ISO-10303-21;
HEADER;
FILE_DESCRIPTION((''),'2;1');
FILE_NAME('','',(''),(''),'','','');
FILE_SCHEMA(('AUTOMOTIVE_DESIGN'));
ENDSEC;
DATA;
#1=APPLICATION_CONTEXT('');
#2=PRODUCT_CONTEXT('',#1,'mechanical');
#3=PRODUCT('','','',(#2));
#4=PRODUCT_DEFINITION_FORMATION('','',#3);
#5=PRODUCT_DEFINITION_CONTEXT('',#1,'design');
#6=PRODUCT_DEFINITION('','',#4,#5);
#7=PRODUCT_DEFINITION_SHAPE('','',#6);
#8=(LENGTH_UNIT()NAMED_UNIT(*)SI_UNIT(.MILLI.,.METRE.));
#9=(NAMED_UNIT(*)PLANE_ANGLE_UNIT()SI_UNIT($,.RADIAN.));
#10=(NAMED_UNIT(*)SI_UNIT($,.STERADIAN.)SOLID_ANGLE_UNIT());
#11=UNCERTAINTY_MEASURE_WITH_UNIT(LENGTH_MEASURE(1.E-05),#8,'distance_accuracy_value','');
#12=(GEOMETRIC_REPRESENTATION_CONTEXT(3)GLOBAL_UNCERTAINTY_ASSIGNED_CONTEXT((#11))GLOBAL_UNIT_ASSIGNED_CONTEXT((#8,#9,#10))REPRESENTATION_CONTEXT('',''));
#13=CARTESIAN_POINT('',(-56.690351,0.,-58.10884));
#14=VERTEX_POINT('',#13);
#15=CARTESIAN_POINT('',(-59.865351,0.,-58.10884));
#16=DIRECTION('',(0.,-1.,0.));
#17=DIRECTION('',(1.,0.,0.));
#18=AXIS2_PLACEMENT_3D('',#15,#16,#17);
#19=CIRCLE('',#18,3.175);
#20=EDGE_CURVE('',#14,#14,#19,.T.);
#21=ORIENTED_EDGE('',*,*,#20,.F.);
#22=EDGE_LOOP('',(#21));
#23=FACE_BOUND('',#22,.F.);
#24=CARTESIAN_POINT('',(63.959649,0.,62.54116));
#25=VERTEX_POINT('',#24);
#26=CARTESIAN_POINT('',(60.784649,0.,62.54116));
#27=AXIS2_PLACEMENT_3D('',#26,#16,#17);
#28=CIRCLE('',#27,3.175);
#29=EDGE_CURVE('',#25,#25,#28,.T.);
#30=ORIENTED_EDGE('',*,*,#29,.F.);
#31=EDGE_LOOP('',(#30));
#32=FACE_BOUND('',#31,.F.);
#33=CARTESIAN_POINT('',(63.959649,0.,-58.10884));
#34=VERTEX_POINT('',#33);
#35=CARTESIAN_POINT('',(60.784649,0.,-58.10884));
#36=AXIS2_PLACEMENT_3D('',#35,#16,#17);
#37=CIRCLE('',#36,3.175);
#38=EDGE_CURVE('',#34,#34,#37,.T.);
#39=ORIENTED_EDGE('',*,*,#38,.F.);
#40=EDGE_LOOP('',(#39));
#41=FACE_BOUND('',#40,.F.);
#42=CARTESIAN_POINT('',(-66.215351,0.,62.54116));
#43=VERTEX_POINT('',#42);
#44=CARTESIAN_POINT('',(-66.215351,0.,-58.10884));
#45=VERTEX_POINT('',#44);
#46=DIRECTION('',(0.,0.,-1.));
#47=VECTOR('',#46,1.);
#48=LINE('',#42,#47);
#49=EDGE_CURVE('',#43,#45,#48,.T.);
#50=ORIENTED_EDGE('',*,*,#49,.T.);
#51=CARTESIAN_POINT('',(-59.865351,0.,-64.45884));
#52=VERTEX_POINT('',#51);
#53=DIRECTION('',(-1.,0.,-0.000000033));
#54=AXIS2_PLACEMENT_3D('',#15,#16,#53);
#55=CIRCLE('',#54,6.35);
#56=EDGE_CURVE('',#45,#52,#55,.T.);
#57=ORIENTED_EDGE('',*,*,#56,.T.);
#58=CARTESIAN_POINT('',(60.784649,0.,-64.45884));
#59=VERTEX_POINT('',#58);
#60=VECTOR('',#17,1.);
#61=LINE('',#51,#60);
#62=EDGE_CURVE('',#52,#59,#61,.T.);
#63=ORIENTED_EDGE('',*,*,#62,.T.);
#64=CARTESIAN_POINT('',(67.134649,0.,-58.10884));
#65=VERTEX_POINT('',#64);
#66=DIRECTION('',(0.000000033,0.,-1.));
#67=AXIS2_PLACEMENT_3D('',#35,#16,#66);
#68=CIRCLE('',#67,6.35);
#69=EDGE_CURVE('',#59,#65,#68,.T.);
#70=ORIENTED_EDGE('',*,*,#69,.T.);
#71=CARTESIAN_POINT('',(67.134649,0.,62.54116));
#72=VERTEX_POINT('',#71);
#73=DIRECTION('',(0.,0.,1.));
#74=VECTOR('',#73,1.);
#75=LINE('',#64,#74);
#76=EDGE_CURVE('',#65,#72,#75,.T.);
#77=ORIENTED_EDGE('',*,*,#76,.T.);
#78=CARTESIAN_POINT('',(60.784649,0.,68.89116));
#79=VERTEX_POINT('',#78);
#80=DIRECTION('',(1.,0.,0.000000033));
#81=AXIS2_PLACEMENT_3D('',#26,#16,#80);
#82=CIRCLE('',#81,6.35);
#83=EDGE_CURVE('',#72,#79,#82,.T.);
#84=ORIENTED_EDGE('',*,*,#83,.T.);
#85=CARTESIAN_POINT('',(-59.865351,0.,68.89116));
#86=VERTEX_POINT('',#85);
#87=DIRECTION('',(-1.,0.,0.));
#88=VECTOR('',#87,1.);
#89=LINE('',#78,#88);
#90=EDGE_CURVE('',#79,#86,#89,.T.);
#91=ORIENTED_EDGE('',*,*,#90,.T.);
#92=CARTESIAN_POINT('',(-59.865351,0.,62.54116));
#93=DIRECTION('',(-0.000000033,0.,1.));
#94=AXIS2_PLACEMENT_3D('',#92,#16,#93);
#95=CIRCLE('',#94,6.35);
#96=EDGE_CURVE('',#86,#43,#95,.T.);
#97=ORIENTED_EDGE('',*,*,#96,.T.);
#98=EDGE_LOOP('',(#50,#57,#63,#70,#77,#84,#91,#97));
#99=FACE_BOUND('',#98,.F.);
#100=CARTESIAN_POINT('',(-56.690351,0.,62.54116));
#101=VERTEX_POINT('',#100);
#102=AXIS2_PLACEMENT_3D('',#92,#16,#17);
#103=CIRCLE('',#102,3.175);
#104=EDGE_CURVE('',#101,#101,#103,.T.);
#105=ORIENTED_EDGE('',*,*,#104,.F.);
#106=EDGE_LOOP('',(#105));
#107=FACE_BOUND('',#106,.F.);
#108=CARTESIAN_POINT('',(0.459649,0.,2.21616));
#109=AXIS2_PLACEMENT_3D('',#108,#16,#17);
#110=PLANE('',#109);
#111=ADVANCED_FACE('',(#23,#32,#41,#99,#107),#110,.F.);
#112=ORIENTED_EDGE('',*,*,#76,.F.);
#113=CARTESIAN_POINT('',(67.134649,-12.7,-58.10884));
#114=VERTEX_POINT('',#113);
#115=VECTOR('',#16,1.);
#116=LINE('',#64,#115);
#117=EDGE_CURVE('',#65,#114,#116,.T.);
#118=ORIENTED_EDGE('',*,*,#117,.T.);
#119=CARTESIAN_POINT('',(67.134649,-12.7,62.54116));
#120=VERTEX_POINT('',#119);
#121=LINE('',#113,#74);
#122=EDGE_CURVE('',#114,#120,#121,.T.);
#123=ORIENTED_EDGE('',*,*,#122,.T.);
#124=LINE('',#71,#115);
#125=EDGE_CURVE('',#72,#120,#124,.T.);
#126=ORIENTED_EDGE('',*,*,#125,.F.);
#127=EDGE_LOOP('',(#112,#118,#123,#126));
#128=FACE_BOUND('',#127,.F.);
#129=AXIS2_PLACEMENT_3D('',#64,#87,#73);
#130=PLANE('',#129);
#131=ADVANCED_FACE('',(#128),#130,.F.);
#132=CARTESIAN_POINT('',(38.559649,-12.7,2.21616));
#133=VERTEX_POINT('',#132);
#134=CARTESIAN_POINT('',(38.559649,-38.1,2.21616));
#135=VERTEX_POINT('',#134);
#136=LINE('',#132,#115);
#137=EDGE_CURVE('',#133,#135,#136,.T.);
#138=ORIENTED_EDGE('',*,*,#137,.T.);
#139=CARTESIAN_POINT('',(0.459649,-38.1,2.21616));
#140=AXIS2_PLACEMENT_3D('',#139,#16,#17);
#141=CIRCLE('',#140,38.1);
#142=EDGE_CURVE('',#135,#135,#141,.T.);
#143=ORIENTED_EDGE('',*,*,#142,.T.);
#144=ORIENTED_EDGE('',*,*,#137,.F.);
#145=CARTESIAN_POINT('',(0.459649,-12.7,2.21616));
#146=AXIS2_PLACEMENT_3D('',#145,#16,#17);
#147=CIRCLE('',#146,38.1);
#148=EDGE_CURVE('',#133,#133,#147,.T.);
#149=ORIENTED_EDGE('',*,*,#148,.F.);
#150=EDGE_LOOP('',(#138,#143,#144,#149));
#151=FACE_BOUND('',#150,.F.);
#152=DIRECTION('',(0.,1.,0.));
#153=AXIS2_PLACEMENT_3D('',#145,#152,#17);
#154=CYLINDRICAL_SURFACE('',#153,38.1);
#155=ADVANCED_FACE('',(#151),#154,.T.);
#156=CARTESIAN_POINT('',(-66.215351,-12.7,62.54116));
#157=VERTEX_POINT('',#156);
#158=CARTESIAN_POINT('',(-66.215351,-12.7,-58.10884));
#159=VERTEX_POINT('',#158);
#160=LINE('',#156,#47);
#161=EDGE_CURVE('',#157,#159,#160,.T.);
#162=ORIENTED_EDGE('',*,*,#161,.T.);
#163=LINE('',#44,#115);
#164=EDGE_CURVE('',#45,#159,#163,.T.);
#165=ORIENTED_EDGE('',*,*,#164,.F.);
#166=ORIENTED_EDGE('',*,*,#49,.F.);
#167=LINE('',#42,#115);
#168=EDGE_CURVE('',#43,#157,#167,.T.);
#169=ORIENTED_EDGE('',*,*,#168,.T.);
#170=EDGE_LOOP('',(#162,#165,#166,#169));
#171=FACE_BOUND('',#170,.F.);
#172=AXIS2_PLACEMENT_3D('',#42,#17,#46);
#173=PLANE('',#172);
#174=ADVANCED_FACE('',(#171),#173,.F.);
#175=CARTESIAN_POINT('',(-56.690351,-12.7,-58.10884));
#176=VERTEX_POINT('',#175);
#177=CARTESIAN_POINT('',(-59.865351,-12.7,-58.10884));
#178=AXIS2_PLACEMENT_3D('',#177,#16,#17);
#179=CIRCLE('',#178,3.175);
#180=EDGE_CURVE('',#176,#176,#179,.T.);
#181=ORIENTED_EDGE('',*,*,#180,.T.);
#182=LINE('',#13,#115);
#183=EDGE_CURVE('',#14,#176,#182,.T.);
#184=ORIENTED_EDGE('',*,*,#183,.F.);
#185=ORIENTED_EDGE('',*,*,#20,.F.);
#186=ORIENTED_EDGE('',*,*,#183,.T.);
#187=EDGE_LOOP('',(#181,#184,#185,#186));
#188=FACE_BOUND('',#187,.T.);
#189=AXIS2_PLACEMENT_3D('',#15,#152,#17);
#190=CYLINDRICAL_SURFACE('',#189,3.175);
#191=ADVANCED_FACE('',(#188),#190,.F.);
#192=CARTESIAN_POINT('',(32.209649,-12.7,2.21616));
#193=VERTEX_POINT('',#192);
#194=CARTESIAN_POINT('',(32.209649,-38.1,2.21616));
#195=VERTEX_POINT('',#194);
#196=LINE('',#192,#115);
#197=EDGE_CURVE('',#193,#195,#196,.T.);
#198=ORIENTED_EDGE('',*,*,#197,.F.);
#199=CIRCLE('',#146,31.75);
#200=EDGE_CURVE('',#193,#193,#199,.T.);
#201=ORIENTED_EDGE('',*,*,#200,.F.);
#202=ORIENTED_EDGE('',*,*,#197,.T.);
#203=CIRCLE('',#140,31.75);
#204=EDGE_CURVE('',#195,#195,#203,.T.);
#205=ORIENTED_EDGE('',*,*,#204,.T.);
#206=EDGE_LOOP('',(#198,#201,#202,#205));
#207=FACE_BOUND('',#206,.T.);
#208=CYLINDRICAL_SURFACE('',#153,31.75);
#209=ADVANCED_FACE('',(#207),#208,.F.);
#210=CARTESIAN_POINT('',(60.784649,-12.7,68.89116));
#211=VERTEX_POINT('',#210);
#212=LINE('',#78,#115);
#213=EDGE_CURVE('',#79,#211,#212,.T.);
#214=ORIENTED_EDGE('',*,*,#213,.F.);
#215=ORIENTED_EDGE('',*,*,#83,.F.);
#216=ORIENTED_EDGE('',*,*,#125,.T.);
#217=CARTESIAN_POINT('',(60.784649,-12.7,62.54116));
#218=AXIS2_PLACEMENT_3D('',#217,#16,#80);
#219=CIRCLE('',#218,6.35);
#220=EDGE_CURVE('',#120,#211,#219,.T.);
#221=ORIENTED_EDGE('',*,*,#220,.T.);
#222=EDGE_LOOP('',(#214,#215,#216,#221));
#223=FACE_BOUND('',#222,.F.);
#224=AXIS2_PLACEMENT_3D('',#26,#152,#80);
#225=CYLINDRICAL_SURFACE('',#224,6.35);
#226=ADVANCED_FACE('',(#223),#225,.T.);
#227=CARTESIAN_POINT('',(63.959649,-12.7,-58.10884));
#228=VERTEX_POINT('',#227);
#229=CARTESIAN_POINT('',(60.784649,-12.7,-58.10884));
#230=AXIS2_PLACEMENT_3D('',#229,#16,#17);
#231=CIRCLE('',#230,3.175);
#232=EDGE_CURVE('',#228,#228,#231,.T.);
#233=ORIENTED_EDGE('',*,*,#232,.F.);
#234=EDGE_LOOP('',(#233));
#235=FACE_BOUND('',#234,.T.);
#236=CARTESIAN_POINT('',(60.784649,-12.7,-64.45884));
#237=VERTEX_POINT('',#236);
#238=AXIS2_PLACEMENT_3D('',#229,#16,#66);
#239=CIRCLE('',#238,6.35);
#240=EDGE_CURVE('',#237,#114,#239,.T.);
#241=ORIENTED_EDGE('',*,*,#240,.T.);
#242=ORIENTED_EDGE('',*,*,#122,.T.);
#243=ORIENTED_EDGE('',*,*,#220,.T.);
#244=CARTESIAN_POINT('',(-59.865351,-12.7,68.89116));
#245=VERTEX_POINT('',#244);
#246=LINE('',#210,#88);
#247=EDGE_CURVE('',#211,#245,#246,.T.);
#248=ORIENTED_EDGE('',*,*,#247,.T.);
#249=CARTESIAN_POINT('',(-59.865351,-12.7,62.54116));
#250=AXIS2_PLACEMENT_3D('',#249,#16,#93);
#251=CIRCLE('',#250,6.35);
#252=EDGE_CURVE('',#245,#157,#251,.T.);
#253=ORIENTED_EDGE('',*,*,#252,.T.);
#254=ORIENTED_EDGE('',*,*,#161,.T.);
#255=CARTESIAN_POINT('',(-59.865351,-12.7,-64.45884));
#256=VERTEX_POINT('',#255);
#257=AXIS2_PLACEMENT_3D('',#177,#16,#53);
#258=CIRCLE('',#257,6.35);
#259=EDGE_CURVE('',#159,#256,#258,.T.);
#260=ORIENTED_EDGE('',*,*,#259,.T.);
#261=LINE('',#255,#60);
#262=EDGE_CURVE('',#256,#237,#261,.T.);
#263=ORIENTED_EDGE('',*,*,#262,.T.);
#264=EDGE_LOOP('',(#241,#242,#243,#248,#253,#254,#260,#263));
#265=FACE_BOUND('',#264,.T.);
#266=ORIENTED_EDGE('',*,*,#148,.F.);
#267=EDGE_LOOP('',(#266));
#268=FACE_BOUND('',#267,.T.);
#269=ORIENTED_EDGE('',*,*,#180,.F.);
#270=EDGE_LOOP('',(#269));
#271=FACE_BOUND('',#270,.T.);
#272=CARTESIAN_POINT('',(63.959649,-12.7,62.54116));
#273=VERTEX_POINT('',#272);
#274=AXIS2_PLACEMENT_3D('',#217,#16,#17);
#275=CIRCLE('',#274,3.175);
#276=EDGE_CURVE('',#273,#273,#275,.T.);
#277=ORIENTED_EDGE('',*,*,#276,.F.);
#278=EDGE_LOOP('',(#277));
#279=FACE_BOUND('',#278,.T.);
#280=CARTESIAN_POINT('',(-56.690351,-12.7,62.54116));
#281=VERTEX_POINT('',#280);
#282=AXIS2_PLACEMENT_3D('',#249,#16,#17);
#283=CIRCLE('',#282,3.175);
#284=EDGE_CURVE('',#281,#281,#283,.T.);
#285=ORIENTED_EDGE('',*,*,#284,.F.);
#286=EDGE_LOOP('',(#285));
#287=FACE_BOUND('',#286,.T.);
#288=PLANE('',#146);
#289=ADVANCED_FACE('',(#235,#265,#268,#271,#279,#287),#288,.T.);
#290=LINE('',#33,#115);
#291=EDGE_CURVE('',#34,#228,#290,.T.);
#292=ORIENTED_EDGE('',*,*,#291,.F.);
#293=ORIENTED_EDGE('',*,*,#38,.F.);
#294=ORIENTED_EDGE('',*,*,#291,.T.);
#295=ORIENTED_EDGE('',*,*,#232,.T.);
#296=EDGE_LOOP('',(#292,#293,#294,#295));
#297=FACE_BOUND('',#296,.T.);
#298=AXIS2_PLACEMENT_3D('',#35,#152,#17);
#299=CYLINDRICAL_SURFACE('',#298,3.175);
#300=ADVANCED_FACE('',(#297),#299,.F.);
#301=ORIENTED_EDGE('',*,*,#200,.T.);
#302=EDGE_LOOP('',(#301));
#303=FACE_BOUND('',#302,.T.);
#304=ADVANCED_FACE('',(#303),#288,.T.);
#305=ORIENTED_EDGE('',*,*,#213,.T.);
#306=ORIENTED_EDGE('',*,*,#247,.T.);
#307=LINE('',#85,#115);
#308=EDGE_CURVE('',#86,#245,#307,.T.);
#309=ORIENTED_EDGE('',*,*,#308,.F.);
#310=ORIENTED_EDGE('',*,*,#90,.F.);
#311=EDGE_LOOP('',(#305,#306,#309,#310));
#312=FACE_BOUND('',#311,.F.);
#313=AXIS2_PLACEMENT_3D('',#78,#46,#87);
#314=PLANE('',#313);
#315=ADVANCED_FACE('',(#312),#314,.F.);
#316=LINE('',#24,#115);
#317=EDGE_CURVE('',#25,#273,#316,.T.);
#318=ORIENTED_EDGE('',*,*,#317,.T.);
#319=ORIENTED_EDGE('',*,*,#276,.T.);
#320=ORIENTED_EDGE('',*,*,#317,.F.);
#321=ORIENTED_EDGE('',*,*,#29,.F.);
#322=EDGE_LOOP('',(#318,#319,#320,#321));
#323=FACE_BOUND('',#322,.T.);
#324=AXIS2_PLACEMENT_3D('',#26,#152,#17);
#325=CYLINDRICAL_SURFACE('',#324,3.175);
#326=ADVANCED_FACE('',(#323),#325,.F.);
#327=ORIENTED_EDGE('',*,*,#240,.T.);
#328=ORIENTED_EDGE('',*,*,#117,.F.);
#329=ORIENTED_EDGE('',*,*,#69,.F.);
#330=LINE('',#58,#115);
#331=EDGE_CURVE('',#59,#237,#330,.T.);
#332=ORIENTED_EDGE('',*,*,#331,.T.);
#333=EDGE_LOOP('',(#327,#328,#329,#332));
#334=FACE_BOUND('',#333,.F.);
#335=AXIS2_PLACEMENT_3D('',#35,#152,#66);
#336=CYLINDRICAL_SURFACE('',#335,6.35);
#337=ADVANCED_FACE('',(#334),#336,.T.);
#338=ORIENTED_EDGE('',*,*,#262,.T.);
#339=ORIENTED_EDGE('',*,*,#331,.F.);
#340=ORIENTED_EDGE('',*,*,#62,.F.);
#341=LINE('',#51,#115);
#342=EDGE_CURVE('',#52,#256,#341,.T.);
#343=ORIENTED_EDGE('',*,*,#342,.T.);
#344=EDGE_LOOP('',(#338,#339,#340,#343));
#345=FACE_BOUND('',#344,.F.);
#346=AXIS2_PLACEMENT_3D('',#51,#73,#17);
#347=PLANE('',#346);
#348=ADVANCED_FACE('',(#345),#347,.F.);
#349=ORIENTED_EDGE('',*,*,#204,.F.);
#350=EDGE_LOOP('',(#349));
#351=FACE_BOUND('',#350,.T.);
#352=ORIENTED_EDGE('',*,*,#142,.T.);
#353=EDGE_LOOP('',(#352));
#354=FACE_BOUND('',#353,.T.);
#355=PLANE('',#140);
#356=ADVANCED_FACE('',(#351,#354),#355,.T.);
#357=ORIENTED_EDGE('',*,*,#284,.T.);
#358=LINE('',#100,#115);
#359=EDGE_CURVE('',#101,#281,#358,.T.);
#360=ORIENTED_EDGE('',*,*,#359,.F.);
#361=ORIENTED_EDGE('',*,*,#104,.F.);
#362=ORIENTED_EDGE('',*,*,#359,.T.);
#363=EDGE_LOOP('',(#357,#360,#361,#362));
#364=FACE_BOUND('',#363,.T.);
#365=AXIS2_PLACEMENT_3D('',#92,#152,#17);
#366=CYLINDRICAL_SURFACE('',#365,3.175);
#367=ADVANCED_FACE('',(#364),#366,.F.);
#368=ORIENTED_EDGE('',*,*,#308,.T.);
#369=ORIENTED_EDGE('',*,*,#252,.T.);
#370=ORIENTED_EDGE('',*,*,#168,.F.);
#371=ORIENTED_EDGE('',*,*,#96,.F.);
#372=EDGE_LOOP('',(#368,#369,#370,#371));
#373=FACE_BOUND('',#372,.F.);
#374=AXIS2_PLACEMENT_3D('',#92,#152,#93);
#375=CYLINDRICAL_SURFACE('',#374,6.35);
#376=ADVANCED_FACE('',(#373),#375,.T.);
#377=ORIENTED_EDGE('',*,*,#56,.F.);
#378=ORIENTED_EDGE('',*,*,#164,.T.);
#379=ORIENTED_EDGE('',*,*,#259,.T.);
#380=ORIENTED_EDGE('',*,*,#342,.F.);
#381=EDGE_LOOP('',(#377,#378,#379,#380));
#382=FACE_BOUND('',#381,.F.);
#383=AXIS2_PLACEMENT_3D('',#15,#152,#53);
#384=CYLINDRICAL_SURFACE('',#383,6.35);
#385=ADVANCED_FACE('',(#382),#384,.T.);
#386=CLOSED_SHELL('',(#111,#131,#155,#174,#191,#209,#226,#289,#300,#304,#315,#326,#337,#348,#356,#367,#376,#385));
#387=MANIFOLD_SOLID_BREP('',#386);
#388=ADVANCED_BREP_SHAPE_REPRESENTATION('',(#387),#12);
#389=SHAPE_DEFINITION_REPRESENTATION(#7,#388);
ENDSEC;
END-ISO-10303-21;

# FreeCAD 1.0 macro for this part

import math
import FreeCAD as App
import Part
import Sketcher
Q = App.Units.Quantity

doc = App.newDocument("Part")
params = doc.addObject("Spreadsheet::Sheet", "Params")
for row, (alias, value) in enumerate([
    ("sketch1_diameter", "0.25 in"),
    ("sketch1_radius", "0.25 in"),
    ("pad1_length", "0.5 in"),
    ("sketch2_diameter", "3 in"),
    ("sketch2_diameter2", "2.5 in"),
    ("pad2_length", "1 in"),
], start=1):
    params.set(f"A{row}", alias)
    params.set(f"B{row}", "=" + value)
    params.setAlias(f"B{row}", alias)

body = doc.addObject("PartDesign::Body", "Body")

sketch1 = body.newObject("Sketcher::SketchObject", "Sketch")
sketch1.AttachmentSupport = (doc.getObject("XZ_Plane"), [""])
sketch1.MapMode = "FlatFace"
sketch1.addGeometry([
    Part.LineSegment(App.Vector(60.784649, 68.89116, 0), App.Vector(-59.865351, 68.89116, 0)),
    Part.ArcOfCircle(Part.Circle(App.Vector(-59.865351, 62.54116, 0), App.Vector(0, 0, 1), 6.35), math.radians(90.000002), math.radians(179.999998)),
    Part.LineSegment(App.Vector(-66.215351, 62.54116, 0), App.Vector(-66.215351, -58.10884, 0)),
    Part.ArcOfCircle(Part.Circle(App.Vector(-59.865351, -58.10884, 0), App.Vector(0, 0, 1), 6.35), math.radians(-179.999998), math.radians(-90.000002)),
    Part.LineSegment(App.Vector(-59.865351, -64.45884, 0), App.Vector(60.784649, -64.45884, 0)),
    Part.ArcOfCircle(Part.Circle(App.Vector(60.784649, -58.10884, 0), App.Vector(0, 0, 1), 6.35), math.radians(-89.999998), math.radians(-0.000002)),
    Part.LineSegment(App.Vector(67.134649, -58.10884, 0), App.Vector(67.134649, 62.54116, 0)),
    Part.ArcOfCircle(Part.Circle(App.Vector(60.784649, 62.54116, 0), App.Vector(0, 0, 1), 6.35), math.radians(0.000002), math.radians(89.999998)),
    Part.Circle(App.Vector(-59.865351, -58.10884, 0), App.Vector(0, 0, 1), 3.175),
    Part.Circle(App.Vector(60.784649, -58.10884, 0), App.Vector(0, 0, 1), 3.175),
    Part.Circle(App.Vector(-59.865351, 62.54116, 0), App.Vector(0, 0, 1), 3.175),
    Part.Circle(App.Vector(60.784649, 62.54116, 0), App.Vector(0, 0, 1), 3.175),
], False)
sketch1.addConstraint([
    Sketcher.Constraint("Tangent", 0, 2, 1, 1),
    Sketcher.Constraint("Tangent", 1, 2, 2, 1),
    Sketcher.Constraint("Tangent", 2, 2, 3, 1),
    Sketcher.Constraint("Tangent", 3, 2, 4, 1),
    Sketcher.Constraint("Tangent", 4, 2, 5, 1),
    Sketcher.Constraint("Tangent", 5, 2, 6, 1),
    Sketcher.Constraint("Tangent", 6, 2, 7, 1),
    Sketcher.Constraint("Tangent", 7, 2, 0, 1),
    Sketcher.Constraint("Horizontal", 0),
    Sketcher.Constraint("Vertical", 2),
    Sketcher.Constraint("Horizontal", 4),
    Sketcher.Constraint("Vertical", 6),
    Sketcher.Constraint("Coincident", 8, 3, 3, 3),
    Sketcher.Constraint("Coincident", 9, 3, 5, 3),
    Sketcher.Constraint("Coincident", 10, 3, 1, 3),
    Sketcher.Constraint("Coincident", 11, 3, 7, 3),
    Sketcher.Constraint("Equal", 1, 3),
    Sketcher.Constraint("Equal", 3, 5),
    Sketcher.Constraint("Equal", 5, 7),
    Sketcher.Constraint("Equal", 8, 9),
    Sketcher.Constraint("Equal", 9, 10),
    Sketcher.Constraint("Equal", 10, 11),
    Sketcher.Constraint("Equal", 4, 2),
    Sketcher.Constraint("Diameter", 8, Q("0.25 in")),
    Sketcher.Constraint("Radius", 1, Q("0.25 in")),
    Sketcher.Constraint("DistanceY", 3, 3, 0, 2, Q("5 in")),
    Sketcher.Constraint("DistanceX", 1, 3, -1, 1, 59.865351),
    Sketcher.Constraint("DistanceY", -1, 1, 1, 3, 62.54116),
])
sketch1.setExpression("Constraints[23]", "Params.sketch1_diameter")
sketch1.setExpression("Constraints[24]", "Params.sketch1_radius")
pad1 = body.newObject("PartDesign::Pad", "Pad")
pad1.Profile = sketch1
pad1.setExpression("Length", "Params.pad1_length")

sketch2 = body.newObject("Sketcher::SketchObject", "Sketch001")
sketch2.AttachmentSupport = (doc.getObject("XZ_Plane"), [""])
sketch2.MapMode = "FlatFace"
sketch2.AttachmentOffset = App.Placement(App.Vector(0, 0, 0.5 * 25.4), App.Rotation())
sketch2.addGeometry([
    Part.Circle(App.Vector(0.459649, 2.21616, 0), App.Vector(0, 0, 1), 38.1),
    Part.Circle(App.Vector(0.459649, 2.21616, 0), App.Vector(0, 0, 1), 31.75),
], False)
sketch2.addConstraint([
    Sketcher.Constraint("Coincident", 1, 3, 0, 3),
    Sketcher.Constraint("Diameter", 0, Q("3 in")),
    Sketcher.Constraint("Diameter", 1, Q("2.5 in")),
    Sketcher.Constraint("DistanceX", -1, 1, 0, 3, 0.459649),
    Sketcher.Constraint("DistanceY", -1, 1, 0, 3, 2.21616),
])
sketch2.setExpression("Constraints[1]", "Params.sketch2_diameter")
sketch2.setExpression("Constraints[2]", "Params.sketch2_diameter2")
pad2 = body.newObject("PartDesign::Pad", "Pad001")
pad2.Profile = sketch2
pad2.setExpression("Length", "Params.pad2_length")

doc.recompute()
